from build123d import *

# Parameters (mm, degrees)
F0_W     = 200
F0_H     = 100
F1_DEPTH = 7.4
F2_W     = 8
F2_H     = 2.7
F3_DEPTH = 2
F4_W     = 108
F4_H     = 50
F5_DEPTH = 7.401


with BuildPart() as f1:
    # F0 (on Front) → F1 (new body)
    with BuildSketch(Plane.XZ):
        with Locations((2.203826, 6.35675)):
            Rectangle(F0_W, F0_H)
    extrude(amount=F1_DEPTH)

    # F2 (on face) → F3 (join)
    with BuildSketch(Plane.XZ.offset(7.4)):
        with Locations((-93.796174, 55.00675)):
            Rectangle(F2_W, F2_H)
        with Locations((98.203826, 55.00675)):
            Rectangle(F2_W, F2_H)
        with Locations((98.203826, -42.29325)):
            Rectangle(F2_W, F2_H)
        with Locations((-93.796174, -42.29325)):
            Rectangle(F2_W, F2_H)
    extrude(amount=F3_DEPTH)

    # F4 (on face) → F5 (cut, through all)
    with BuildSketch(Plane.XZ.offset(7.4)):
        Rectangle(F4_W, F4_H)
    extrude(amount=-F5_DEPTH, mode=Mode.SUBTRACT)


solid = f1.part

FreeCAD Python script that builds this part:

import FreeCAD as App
import Part
import Sketcher
from FreeCAD import Vector
Q = App.Units.Quantity

doc = App.newDocument("Part")
body = doc.addObject("PartDesign::Body", "Body")

# Sketch on XZ plane
sketch1 = doc.addObject("Sketcher::SketchObject", "Sketch")
body.addObject(sketch1)
sketch1.AttachmentSupport = (doc.XZ_Plane, [""])
sketch1.MapMode = "FlatFace"
sketch1.addGeometry([
    Part.LineSegment(Vector(-98, 56, 0), Vector(-98, -44, 0)),
    Part.LineSegment(Vector(-98, -44, 0), Vector(102, -44, 0)),
    Part.LineSegment(Vector(102, -44, 0), Vector(102, 56, 0)),
    Part.LineSegment(Vector(102, 56, 0), Vector(-98, 56, 0)),
], False)
sketch1.addConstraint([
    Sketcher.Constraint("Coincident", 0, 2, 1, 1),
    Sketcher.Constraint("Coincident", 1, 2, 2, 1),
    Sketcher.Constraint("Coincident", 2, 2, 3, 1),
    Sketcher.Constraint("Coincident", 3, 2, 0, 1),
    Sketcher.Constraint("Vertical", 0),
    Sketcher.Constraint("Horizontal", 1),
    Sketcher.Constraint("Vertical", 2),
    Sketcher.Constraint("Horizontal", 3),
    Sketcher.Constraint("DistanceX", 1, 1, 1, 2, Q("200 mm")),
    Sketcher.Constraint("DistanceY", 0, 2, 0, 1, Q("100 mm")),
    Sketcher.Constraint("DistanceY", 0, 2, -1, 1, Q("43.64325 mm")),
    Sketcher.Constraint("DistanceX", 0, 2, -1, 1, Q("97.796174 mm")),
])
pad1 = doc.addObject("PartDesign::Pad", "Pad")
body.addObject(pad1)
pad1.Profile = sketch1
pad1.Length = 7.4

# Sketch on XZ plane
sketch2 = doc.addObject("Sketcher::SketchObject", "Sketch001")
body.addObject(sketch2)
sketch2.AttachmentSupport = (doc.XZ_Plane, [""])
sketch2.MapMode = "FlatFace"
sketch2.AttachmentOffset = App.Placement(Vector(0, 0, 7.4), App.Rotation())
sketch2.addGeometry([
    Part.LineSegment(Vector(-97.8, 56.4, 0), Vector(-97.8, 53.7, 0)),  # 0
    Part.LineSegment(Vector(-97.8, 53.7, 0), Vector(-89.8, 53.7, 0)),  # 1
    Part.LineSegment(Vector(-89.8, 53.7, 0), Vector(-89.8, 56.4, 0)),  # 2
    Part.LineSegment(Vector(-89.8, 56.4, 0), Vector(-97.8, 56.4, 0)),  # 3
    Part.LineSegment(Vector(94.2, 56.4, 0), Vector(94.2, 53.7, 0)),  # 4
    Part.LineSegment(Vector(94.2, 53.7, 0), Vector(102.2, 53.7, 0)),  # 5
    Part.LineSegment(Vector(102.2, 53.7, 0), Vector(102.2, 56.4, 0)),  # 6
    Part.LineSegment(Vector(102.2, 56.4, 0), Vector(94.2, 56.4, 0)),  # 7
    Part.LineSegment(Vector(94.2, -40.9, 0), Vector(94.2, -43.6, 0)),  # 8
    Part.LineSegment(Vector(94.2, -43.6, 0), Vector(102.2, -43.6, 0)),  # 9
    Part.LineSegment(Vector(102.2, -43.6, 0), Vector(102.2, -40.9, 0)),  # 10
    Part.LineSegment(Vector(102.2, -40.9, 0), Vector(94.2, -40.9, 0)),  # 11
    Part.LineSegment(Vector(-97.8, -40.9, 0), Vector(-97.8, -43.6, 0)),  # 12
    Part.LineSegment(Vector(-97.8, -43.6, 0), Vector(-89.8, -43.6, 0)),  # 13
    Part.LineSegment(Vector(-89.8, -43.6, 0), Vector(-89.8, -40.9, 0)),  # 14
    Part.LineSegment(Vector(-89.8, -40.9, 0), Vector(-97.8, -40.9, 0)),  # 15
], False)
sketch2.addConstraint([
    Sketcher.Constraint("Coincident", 0, 2, 1, 1),
    Sketcher.Constraint("Coincident", 1, 2, 2, 1),
    Sketcher.Constraint("Coincident", 2, 2, 3, 1),
    Sketcher.Constraint("Coincident", 3, 2, 0, 1),
    Sketcher.Constraint("Coincident", 4, 2, 5, 1),
    Sketcher.Constraint("Coincident", 5, 2, 6, 1),
    Sketcher.Constraint("Coincident", 6, 2, 7, 1),
    Sketcher.Constraint("Coincident", 7, 2, 4, 1),
    Sketcher.Constraint("Coincident", 8, 2, 9, 1),
    Sketcher.Constraint("Coincident", 9, 2, 10, 1),
    Sketcher.Constraint("Coincident", 10, 2, 11, 1),
    Sketcher.Constraint("Coincident", 11, 2, 8, 1),
    Sketcher.Constraint("Coincident", 12, 2, 13, 1),
    Sketcher.Constraint("Coincident", 13, 2, 14, 1),
    Sketcher.Constraint("Coincident", 14, 2, 15, 1),
    Sketcher.Constraint("Coincident", 15, 2, 12, 1),
    Sketcher.Constraint("Vertical", 0),
    Sketcher.Constraint("Horizontal", 1),
    Sketcher.Constraint("Vertical", 2),
    Sketcher.Constraint("Horizontal", 3),
    Sketcher.Constraint("Vertical", 4),
    Sketcher.Constraint("Horizontal", 5),
    Sketcher.Constraint("Vertical", 6),
    Sketcher.Constraint("Horizontal", 7),
    Sketcher.Constraint("Vertical", 8),
    Sketcher.Constraint("Horizontal", 9),
    Sketcher.Constraint("Vertical", 10),
    Sketcher.Constraint("Horizontal", 11),
    Sketcher.Constraint("Vertical", 12),
    Sketcher.Constraint("Horizontal", 13),
    Sketcher.Constraint("Vertical", 14),
    Sketcher.Constraint("Horizontal", 15),
    Sketcher.Constraint("Horizontal", 1, 2, 4, 2),
    Sketcher.Constraint("Horizontal", 3, 2, 6, 2),
    Sketcher.Constraint("Horizontal", 9, 2, 12, 2),
    Sketcher.Constraint("Horizontal", 11, 2, 14, 2),
    Sketcher.Constraint("Vertical", 7, 2, 8, 2),
    Sketcher.Constraint("Vertical", 6, 2, 9, 2),
    Sketcher.Constraint("Vertical", 3, 2, 12, 2),
    Sketcher.Constraint("Vertical", 2, 2, 13, 2),
    Sketcher.Constraint("Equal", 3, 5),
    Sketcher.Constraint("Equal", 6, 8),
    Sketcher.Constraint("DistanceX", 1, 1, 1, 2, Q("8 mm")),
    Sketcher.Constraint("DistanceY", 0, 2, 0, 1, Q("2.7 mm")),
    Sketcher.Constraint("DistanceX", 1, 2, 4, 2, Q("184 mm")),
    Sketcher.Constraint("DistanceY", 8, 2, 7, 2, Q("100 mm")),
    Sketcher.Constraint("DistanceY", -1, 1, 0, 2, Q("53.65675 mm")),
    Sketcher.Constraint("DistanceX", 0, 2, -1, 1, Q("97.796174 mm")),
])
pad2 = doc.addObject("PartDesign::Pad", "Pad001")
body.addObject(pad2)
pad2.Profile = sketch2
pad2.Length = 2

# Sketch on XZ plane
sketch3 = doc.addObject("Sketcher::SketchObject", "Sketch002")
body.addObject(sketch3)
sketch3.AttachmentSupport = (doc.XZ_Plane, [""])
sketch3.MapMode = "FlatFace"
sketch3.AttachmentOffset = App.Placement(Vector(0, 0, 7.4), App.Rotation())
sketch3.addGeometry([
    Part.LineSegment(Vector(-54, 25, 0), Vector(-54, -25, 0)),
    Part.LineSegment(Vector(-54, -25, 0), Vector(54, -25, 0)),
    Part.LineSegment(Vector(54, -25, 0), Vector(54, 25, 0)),
    Part.LineSegment(Vector(54, 25, 0), Vector(-54, 25, 0)),
], False)
sketch3.addConstraint([
    Sketcher.Constraint("Coincident", 0, 2, 1, 1),
    Sketcher.Constraint("Coincident", 1, 2, 2, 1),
    Sketcher.Constraint("Coincident", 2, 2, 3, 1),
    Sketcher.Constraint("Coincident", 3, 2, 0, 1),
    Sketcher.Constraint("Vertical", 0),
    Sketcher.Constraint("Horizontal", 1),
    Sketcher.Constraint("Vertical", 2),
    Sketcher.Constraint("Horizontal", 3),
    Sketcher.Constraint("Symmetric", 0, 2, 2, 2, -1, 1),
    Sketcher.Constraint("DistanceX", 1, 1, 1, 2, Q("108 mm")),
    Sketcher.Constraint("DistanceY", 0, 2, 0, 1, Q("50 mm")),
])
pocket1 = doc.addObject("PartDesign::Pocket", "Pocket")
body.addObject(pocket1)
pocket1.Profile = sketch3
pocket1.Type = "ThroughAll"

doc.recompute()
